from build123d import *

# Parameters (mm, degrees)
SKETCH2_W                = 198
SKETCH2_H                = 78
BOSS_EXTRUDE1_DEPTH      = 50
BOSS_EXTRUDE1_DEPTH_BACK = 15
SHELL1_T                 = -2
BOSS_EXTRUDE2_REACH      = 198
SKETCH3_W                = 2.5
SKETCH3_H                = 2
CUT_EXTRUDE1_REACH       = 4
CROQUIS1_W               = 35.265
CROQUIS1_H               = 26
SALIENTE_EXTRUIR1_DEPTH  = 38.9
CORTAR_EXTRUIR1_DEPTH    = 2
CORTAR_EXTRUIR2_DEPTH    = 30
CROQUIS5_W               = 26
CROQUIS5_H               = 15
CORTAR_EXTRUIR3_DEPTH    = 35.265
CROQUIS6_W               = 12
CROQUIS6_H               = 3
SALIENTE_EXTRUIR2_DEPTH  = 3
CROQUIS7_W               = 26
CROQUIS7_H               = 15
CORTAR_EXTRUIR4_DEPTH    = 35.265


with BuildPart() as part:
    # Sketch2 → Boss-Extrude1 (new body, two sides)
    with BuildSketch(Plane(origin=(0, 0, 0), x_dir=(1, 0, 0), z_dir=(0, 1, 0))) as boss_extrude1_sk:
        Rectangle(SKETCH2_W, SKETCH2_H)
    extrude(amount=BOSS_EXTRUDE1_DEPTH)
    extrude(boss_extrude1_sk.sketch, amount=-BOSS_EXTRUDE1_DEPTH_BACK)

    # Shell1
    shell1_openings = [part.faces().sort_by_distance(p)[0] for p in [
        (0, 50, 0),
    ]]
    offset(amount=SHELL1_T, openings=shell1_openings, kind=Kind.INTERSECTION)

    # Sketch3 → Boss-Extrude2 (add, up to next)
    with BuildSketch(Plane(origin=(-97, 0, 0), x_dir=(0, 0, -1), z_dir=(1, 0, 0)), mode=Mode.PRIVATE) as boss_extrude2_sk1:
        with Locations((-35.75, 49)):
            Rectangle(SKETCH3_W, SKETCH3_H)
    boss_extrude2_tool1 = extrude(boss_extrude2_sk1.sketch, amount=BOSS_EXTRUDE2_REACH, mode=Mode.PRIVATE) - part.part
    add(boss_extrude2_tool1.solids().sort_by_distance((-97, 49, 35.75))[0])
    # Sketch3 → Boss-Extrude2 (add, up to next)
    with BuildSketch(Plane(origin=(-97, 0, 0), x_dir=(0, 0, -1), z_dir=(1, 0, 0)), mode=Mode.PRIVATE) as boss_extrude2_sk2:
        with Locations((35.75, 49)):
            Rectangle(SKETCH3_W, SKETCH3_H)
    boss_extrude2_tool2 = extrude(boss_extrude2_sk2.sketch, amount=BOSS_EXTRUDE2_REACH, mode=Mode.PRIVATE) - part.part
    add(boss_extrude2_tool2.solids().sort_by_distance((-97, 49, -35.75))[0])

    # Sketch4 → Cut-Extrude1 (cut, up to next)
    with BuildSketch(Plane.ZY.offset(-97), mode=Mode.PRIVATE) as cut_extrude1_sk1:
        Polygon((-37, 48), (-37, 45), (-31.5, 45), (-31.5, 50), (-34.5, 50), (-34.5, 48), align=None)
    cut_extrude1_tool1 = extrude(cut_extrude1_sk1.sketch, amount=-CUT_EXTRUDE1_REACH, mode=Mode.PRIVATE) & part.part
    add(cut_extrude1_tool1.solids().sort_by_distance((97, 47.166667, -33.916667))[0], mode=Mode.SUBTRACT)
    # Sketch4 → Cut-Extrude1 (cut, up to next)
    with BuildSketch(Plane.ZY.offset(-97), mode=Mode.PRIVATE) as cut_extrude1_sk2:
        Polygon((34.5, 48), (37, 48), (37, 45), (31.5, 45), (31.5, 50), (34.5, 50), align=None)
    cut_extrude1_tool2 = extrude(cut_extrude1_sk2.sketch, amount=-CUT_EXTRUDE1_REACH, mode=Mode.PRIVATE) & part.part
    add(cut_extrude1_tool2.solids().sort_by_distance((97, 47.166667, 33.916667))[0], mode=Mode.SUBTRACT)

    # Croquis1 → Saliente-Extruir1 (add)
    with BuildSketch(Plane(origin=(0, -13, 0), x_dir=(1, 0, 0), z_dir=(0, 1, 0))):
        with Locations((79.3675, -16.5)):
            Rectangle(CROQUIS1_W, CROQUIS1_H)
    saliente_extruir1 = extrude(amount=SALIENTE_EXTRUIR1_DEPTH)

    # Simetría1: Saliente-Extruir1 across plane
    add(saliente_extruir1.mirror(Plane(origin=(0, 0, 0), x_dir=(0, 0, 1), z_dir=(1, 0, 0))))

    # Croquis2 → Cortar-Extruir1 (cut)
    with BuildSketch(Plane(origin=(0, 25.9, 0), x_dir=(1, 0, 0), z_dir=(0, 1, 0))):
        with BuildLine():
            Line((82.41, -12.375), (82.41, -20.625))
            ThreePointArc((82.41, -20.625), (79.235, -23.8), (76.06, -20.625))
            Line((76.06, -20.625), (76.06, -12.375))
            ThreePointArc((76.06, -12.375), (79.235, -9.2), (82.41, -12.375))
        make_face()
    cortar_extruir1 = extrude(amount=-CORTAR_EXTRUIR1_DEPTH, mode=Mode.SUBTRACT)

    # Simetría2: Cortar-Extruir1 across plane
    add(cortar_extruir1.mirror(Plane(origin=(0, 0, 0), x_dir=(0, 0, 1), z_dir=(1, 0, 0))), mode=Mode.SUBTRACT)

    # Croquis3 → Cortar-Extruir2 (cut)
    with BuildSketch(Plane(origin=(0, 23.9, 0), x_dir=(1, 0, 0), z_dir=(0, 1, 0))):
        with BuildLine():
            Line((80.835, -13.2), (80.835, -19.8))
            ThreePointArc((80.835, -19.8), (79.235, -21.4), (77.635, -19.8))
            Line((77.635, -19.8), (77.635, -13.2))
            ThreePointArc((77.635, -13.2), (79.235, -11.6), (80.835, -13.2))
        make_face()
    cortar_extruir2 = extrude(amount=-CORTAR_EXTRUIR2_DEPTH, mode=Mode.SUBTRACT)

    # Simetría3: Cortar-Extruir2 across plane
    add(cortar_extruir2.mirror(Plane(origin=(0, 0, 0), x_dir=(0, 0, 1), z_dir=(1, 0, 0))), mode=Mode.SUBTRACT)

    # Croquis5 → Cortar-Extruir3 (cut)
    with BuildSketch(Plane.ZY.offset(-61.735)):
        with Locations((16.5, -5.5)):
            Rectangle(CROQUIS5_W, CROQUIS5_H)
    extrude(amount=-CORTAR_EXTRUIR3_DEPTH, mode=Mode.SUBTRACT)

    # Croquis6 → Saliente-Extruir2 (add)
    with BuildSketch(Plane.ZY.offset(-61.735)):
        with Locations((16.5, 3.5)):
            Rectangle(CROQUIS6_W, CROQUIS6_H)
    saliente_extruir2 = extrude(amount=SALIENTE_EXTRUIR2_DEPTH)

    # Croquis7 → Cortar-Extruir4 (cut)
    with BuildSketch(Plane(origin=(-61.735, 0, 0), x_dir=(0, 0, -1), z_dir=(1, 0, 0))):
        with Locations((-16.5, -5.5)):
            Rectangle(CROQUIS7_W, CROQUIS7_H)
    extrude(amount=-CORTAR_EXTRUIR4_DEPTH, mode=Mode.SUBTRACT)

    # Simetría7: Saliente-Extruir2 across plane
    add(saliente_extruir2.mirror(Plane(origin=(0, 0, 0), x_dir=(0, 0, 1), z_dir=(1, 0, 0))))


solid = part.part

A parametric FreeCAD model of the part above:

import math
import FreeCAD as App
import Part
import Sketcher

V = App.Vector
Q = App.Units.Quantity


def faces_at(feature, points):
    """Names of the faces that lie closest to the given points."""
    faces = feature.Shape.Faces
    near = lambda p: min(range(len(faces)), key=lambda i: faces[i].distToShape(Part.Vertex(*p))[0])
    return sorted({f"Face{near(p) + 1}" for p in points})


def add_polygon(sketch, points):
    """Adds a closed chain of lines whose ends are joined by coincident constraints."""
    first, n = sketch.GeometryCount, len(points)
    for a, b in zip(points, points[1:] + points[:1]):
        sketch.addGeometry(Part.LineSegment(App.Vector(*a, 0), App.Vector(*b, 0)), False)
    for i in range(n):
        sketch.addConstraint(Sketcher.Constraint("Coincident", first + i, 2, first + (i + 1) % n, 1))

doc = App.newDocument("Part")
body = doc.addObject("PartDesign::Body", "Body")

# Sketch on XZ plane
sketch1 = body.newObject("Sketcher::SketchObject", "Sketch")
sketch1.AttachmentSupport = (doc.getObject("XZ_Plane"), [""])
sketch1.MapMode = "FlatFace"
add_polygon(sketch1, [(-99, -39), (-99, 39), (99, 39), (99, -39)])  # lines 0-3
sketch1.addConstraint(Sketcher.Constraint("Vertical", 0))
sketch1.addConstraint(Sketcher.Constraint("Horizontal", 1))
sketch1.addConstraint(Sketcher.Constraint("Vertical", 2))
sketch1.addConstraint(Sketcher.Constraint("Horizontal", 3))
sketch1.addConstraint(Sketcher.Constraint("Symmetric", 0, 2, 2, 2, -1, 1))
sketch1.addConstraint(Sketcher.Constraint("DistanceX", 1, 1, 1, 2, Q("198 mm")))
sketch1.addConstraint(Sketcher.Constraint("DistanceY", 0, 1, 0, 2, Q("78 mm")))
pad1 = body.newObject("PartDesign::Pad", "Pad")
pad1.Profile = sketch1
pad1.Type = "TwoLengths"
pad1.Length = 50
pad1.Length2 = 15
pad1.Reversed = True
doc.recompute()

thickness = body.newObject("PartDesign::Thickness", "Thickness")
thickness.Base = (pad1, faces_at(pad1, [(0, 50, 0)]))
thickness.Value = 2
thickness.Reversed = True
thickness.Join = "Intersection"

# Sketch on YZ plane
sketch2 = body.newObject("Sketcher::SketchObject", "Sketch001")
sketch2.AttachmentSupport = (doc.getObject("YZ_Plane"), [""])
sketch2.MapMode = "FlatFace"
sketch2.AttachmentOffset = App.Placement(V(0, 0, -97), App.Rotation())
add_polygon(sketch2, [(50, 37), (48, 37), (48, 34.5), (50, 34.5)])  # lines 0-3
sketch2.addConstraint(Sketcher.Constraint("Horizontal", 0))
sketch2.addConstraint(Sketcher.Constraint("Vertical", 1))
sketch2.addConstraint(Sketcher.Constraint("Horizontal", 2))
sketch2.addConstraint(Sketcher.Constraint("Vertical", 3))
sketch2.addConstraint(Sketcher.Constraint("DistanceX", 0, 2, 0, 1, Q("2 mm")))
sketch2.addConstraint(Sketcher.Constraint("DistanceY", 1, 2, 1, 1, Q("2.5 mm")))
sketch2.addConstraint(Sketcher.Constraint("DistanceX", -1, 1, 0, 2, Q("48 mm")))
sketch2.addConstraint(Sketcher.Constraint("DistanceY", -1, 1, 0, 2, Q("37 mm")))
pad2 = body.newObject("PartDesign::Pad", "Pad001")
pad2.Profile = sketch2
pad2.Type = "UpToFirst"

# Sketch on YZ plane
sketch3 = body.newObject("Sketcher::SketchObject", "Sketch002")
sketch3.AttachmentSupport = (doc.getObject("YZ_Plane"), [""])
sketch3.MapMode = "FlatFace"
sketch3.AttachmentOffset = App.Placement(V(0, 0, -97), App.Rotation())
add_polygon(sketch3, [(50, -34.5), (48, -34.5), (48, -37), (50, -37)])  # lines 0-3
sketch3.addConstraint(Sketcher.Constraint("Horizontal", 0))
sketch3.addConstraint(Sketcher.Constraint("Vertical", 1))
sketch3.addConstraint(Sketcher.Constraint("Horizontal", 2))
sketch3.addConstraint(Sketcher.Constraint("Vertical", 3))
sketch3.addConstraint(Sketcher.Constraint("DistanceX", 0, 2, 0, 1, Q("2 mm")))
sketch3.addConstraint(Sketcher.Constraint("DistanceY", 1, 2, 1, 1, Q("2.5 mm")))
sketch3.addConstraint(Sketcher.Constraint("DistanceX", -1, 1, 0, 2, Q("48 mm")))
sketch3.addConstraint(Sketcher.Constraint("DistanceY", 1, 2, -1, 1, Q("37 mm")))
pad3 = body.newObject("PartDesign::Pad", "Pad002")
pad3.Profile = sketch3
pad3.Type = "UpToFirst"

# Sketch on YZ plane
sketch4 = body.newObject("Sketcher::SketchObject", "Sketch003")
sketch4.AttachmentSupport = (doc.getObject("YZ_Plane"), [""])
sketch4.MapMode = "FlatFace"
sketch4.AttachmentOffset = App.Placement(V(0, 0, 97), App.Rotation())
add_polygon(sketch4, [(48, -37), (45, -37), (45, -31.5), (50, -31.5), (50, -34.5), (48, -34.5)])  # lines 0-5
sketch4.addConstraint(Sketcher.Constraint("Horizontal", 0))
sketch4.addConstraint(Sketcher.Constraint("Vertical", 1))
sketch4.addConstraint(Sketcher.Constraint("Horizontal", 2))
sketch4.addConstraint(Sketcher.Constraint("Vertical", 3))
sketch4.addConstraint(Sketcher.Constraint("Horizontal", 4))
sketch4.addConstraint(Sketcher.Constraint("Vertical", 5))
sketch4.addConstraint(Sketcher.Constraint("Equal", 0, 3))
sketch4.addConstraint(Sketcher.Constraint("DistanceX", 0, 2, 0, 1, Q("3 mm")))
sketch4.addConstraint(Sketcher.Constraint("DistanceX", 2, 1, 2, 2, Q("5 mm")))
sketch4.addConstraint(Sketcher.Constraint("DistanceY", 1, 1, 1, 2, Q("5.5 mm")))
sketch4.addConstraint(Sketcher.Constraint("DistanceX", -1, 1, 0, 2, Q("45 mm")))
sketch4.addConstraint(Sketcher.Constraint("DistanceY", 0, 2, -1, 1, Q("37 mm")))
pocket1 = body.newObject("PartDesign::Pocket", "Pocket")
pocket1.Profile = sketch4
pocket1.Type = "UpToFirst"
pocket1.Reversed = True

# Sketch on YZ plane
sketch5 = body.newObject("Sketcher::SketchObject", "Sketch004")
sketch5.AttachmentSupport = (doc.getObject("YZ_Plane"), [""])
sketch5.MapMode = "FlatFace"
sketch5.AttachmentOffset = App.Placement(V(0, 0, 97), App.Rotation())
add_polygon(sketch5, [(48, 37), (48, 34.5), (50, 34.5), (50, 31.5), (45, 31.5), (45, 37)])  # lines 0-5
sketch5.addConstraint(Sketcher.Constraint("Vertical", 0))
sketch5.addConstraint(Sketcher.Constraint("Horizontal", 1))
sketch5.addConstraint(Sketcher.Constraint("Vertical", 2))
sketch5.addConstraint(Sketcher.Constraint("Horizontal", 3))
sketch5.addConstraint(Sketcher.Constraint("Vertical", 4))
sketch5.addConstraint(Sketcher.Constraint("Horizontal", 5))
sketch5.addConstraint(Sketcher.Constraint("Equal", 5, 2))
sketch5.addConstraint(Sketcher.Constraint("DistanceX", 1, 1, 1, 2, Q("2 mm")))
sketch5.addConstraint(Sketcher.Constraint("DistanceX", 3, 2, 3, 1, Q("5 mm")))
sketch5.addConstraint(Sketcher.Constraint("DistanceY", 0, 2, 0, 1, Q("2.5 mm")))
sketch5.addConstraint(Sketcher.Constraint("DistanceX", -1, 1, 0, 2, Q("48 mm")))
sketch5.addConstraint(Sketcher.Constraint("DistanceY", -1, 1, 4, 2, Q("37 mm")))
pocket2 = body.newObject("PartDesign::Pocket", "Pocket001")
pocket2.Profile = sketch5
pocket2.Type = "UpToFirst"
pocket2.Reversed = True

# Sketch on XZ plane
sketch6 = body.newObject("Sketcher::SketchObject", "Sketch005")
sketch6.AttachmentSupport = (doc.getObject("XZ_Plane"), [""])
sketch6.MapMode = "FlatFace"
sketch6.AttachmentOffset = App.Placement(V(0, 0, 13), App.Rotation())
add_polygon(sketch6, [(61.735, 3.5), (61.735, 29.5), (97, 29.5), (97, 3.5)])  # lines 0-3
sketch6.addConstraint(Sketcher.Constraint("Vertical", 0))
sketch6.addConstraint(Sketcher.Constraint("Horizontal", 1))
sketch6.addConstraint(Sketcher.Constraint("Vertical", 2))
sketch6.addConstraint(Sketcher.Constraint("Horizontal", 3))
sketch6.addConstraint(Sketcher.Constraint("DistanceY", 0, 1, 0, 2, Q("26 mm")))
sketch6.addConstraint(Sketcher.Constraint("DistanceX", -1, 1, 1, 2, Q("97 mm")))
sketch6.addConstraint(Sketcher.Constraint("DistanceY", -1, 1, 0, 2, Q("29.5 mm")))
sketch6.addConstraint(Sketcher.Constraint("DistanceX", 1, 1, 1, 2, Q("35.265 mm")))
pad4 = body.newObject("PartDesign::Pad", "Pad003")
pad4.Profile = sketch6
pad4.Length = 38.9
pad4.Reversed = True
doc.recompute()

mirrored = body.newObject("PartDesign::Mirrored", "Mirrored")
mirrored.Originals = [pad4]
mirrored.MirrorPlane = (doc.getObject("YZ_Plane"), [""])
body.Tip = mirrored

# Sketch on XZ plane
sketch7 = body.newObject("Sketcher::SketchObject", "Sketch006")
sketch7.AttachmentSupport = (doc.getObject("XZ_Plane"), [""])
sketch7.MapMode = "FlatFace"
sketch7.AttachmentOffset = App.Placement(V(0, 0, -25.9), App.Rotation())
sketch7.addGeometry(Part.LineSegment(V(82.41, 20.625, 0), V(82.41, 12.375, 0)), False)
sketch7.addGeometry(Part.ArcOfCircle(Part.Circle(V(79.235, 12.375, 0), V(0, 0, 1), 3.175), math.radians(180), math.radians(360)), False)
sketch7.addGeometry(Part.LineSegment(V(76.06, 12.375, 0), V(76.06, 20.625, 0)), False)
sketch7.addGeometry(Part.ArcOfCircle(Part.Circle(V(79.235, 20.625, 0), V(0, 0, 1), 3.175), math.radians(0), math.radians(180)), False)
sketch7.addConstraint(Sketcher.Constraint("Tangent", 0, 2, 1, 2))
sketch7.addConstraint(Sketcher.Constraint("Tangent", 1, 1, 2, 1))
sketch7.addConstraint(Sketcher.Constraint("Tangent", 2, 2, 3, 2))
sketch7.addConstraint(Sketcher.Constraint("Tangent", 3, 1, 0, 1))
sketch7.addConstraint(Sketcher.Constraint("Vertical", 0))
sketch7.addConstraint(Sketcher.Constraint("Vertical", 2))
sketch7.addConstraint(Sketcher.Constraint("Radius", 1, Q("3.175 mm")))
sketch7.addConstraint(Sketcher.Constraint("DistanceY", 0, 2, 0, 1, Q("8.25 mm")))
sketch7.addConstraint(Sketcher.Constraint("DistanceX", -1, 1, 0, 2, Q("82.41 mm")))
sketch7.addConstraint(Sketcher.Constraint("DistanceY", -1, 1, 1, 3, Q("12.375 mm")))
pocket3 = body.newObject("PartDesign::Pocket", "Pocket002")
pocket3.Profile = sketch7
pocket3.Length = 2
pocket3.Reversed = True
doc.recompute()

mirrored2 = body.newObject("PartDesign::Mirrored", "Mirrored001")
mirrored2.Originals = [pocket3]
mirrored2.MirrorPlane = (doc.getObject("YZ_Plane"), [""])
body.Tip = mirrored2

# Sketch on XZ plane
sketch8 = body.newObject("Sketcher::SketchObject", "Sketch007")
sketch8.AttachmentSupport = (doc.getObject("XZ_Plane"), [""])
sketch8.MapMode = "FlatFace"
sketch8.AttachmentOffset = App.Placement(V(0, 0, -23.9), App.Rotation())
sketch8.addGeometry(Part.LineSegment(V(80.835, 19.8, 0), V(80.835, 13.2, 0)), False)
sketch8.addGeometry(Part.ArcOfCircle(Part.Circle(V(79.235, 13.2, 0), V(0, 0, 1), 1.6), math.radians(180), math.radians(360)), False)
sketch8.addGeometry(Part.LineSegment(V(77.635, 13.2, 0), V(77.635, 19.8, 0)), False)
sketch8.addGeometry(Part.ArcOfCircle(Part.Circle(V(79.235, 19.8, 0), V(0, 0, 1), 1.6), math.radians(0), math.radians(180)), False)
sketch8.addConstraint(Sketcher.Constraint("Tangent", 0, 2, 1, 2))
sketch8.addConstraint(Sketcher.Constraint("Tangent", 1, 1, 2, 1))
sketch8.addConstraint(Sketcher.Constraint("Tangent", 2, 2, 3, 2))
sketch8.addConstraint(Sketcher.Constraint("Tangent", 3, 1, 0, 1))
sketch8.addConstraint(Sketcher.Constraint("Vertical", 0))
sketch8.addConstraint(Sketcher.Constraint("Vertical", 2))
sketch8.addConstraint(Sketcher.Constraint("Radius", 1, Q("1.6 mm")))
sketch8.addConstraint(Sketcher.Constraint("DistanceY", 0, 2, 0, 1, Q("6.6 mm")))
sketch8.addConstraint(Sketcher.Constraint("DistanceY", -1, 1, 1, 3, Q("13.2 mm")))
sketch8.addConstraint(Sketcher.Constraint("DistanceX", -1, 1, 1, 3, Q("79.235 mm")))
pocket4 = body.newObject("PartDesign::Pocket", "Pocket003")
pocket4.Profile = sketch8
pocket4.Length = 30
pocket4.Reversed = True
doc.recompute()

mirrored3 = body.newObject("PartDesign::Mirrored", "Mirrored002")
mirrored3.Originals = [pocket4]
mirrored3.MirrorPlane = (doc.getObject("YZ_Plane"), [""])
body.Tip = mirrored3

# Sketch on YZ plane
sketch9 = body.newObject("Sketcher::SketchObject", "Sketch008")
sketch9.AttachmentSupport = (doc.getObject("YZ_Plane"), [""])
sketch9.MapMode = "FlatFace"
sketch9.AttachmentOffset = App.Placement(V(0, 0, 61.735), App.Rotation())
add_polygon(sketch9, [(2, 3.5), (-13, 3.5), (-13, 29.5), (2, 29.5)])  # lines 0-3
sketch9.addConstraint(Sketcher.Constraint("Horizontal", 0))
sketch9.addConstraint(Sketcher.Constraint("Vertical", 1))
sketch9.addConstraint(Sketcher.Constraint("Horizontal", 2))
sketch9.addConstraint(Sketcher.Constraint("Vertical", 3))
sketch9.addConstraint(Sketcher.Constraint("DistanceX", 0, 2, 0, 1, Q("15 mm")))
sketch9.addConstraint(Sketcher.Constraint("DistanceY", 1, 1, 1, 2, Q("26 mm")))
sketch9.addConstraint(Sketcher.Constraint("DistanceX", 0, 2, -1, 1, Q("13 mm")))
sketch9.addConstraint(Sketcher.Constraint("DistanceY", -1, 1, 0, 2, Q("3.5 mm")))
pocket5 = body.newObject("PartDesign::Pocket", "Pocket004")
pocket5.Profile = sketch9
pocket5.Length = 35.265
pocket5.Reversed = True

# Sketch on YZ plane
sketch10 = body.newObject("Sketcher::SketchObject", "Sketch009")
sketch10.AttachmentSupport = (doc.getObject("YZ_Plane"), [""])
sketch10.MapMode = "FlatFace"
sketch10.AttachmentOffset = App.Placement(V(0, 0, 61.735), App.Rotation())
add_polygon(sketch10, [(5, 10.5), (2, 10.5), (2, 22.5), (5, 22.5)])  # lines 0-3
sketch10.addConstraint(Sketcher.Constraint("Horizontal", 0))
sketch10.addConstraint(Sketcher.Constraint("Vertical", 1))
sketch10.addConstraint(Sketcher.Constraint("Horizontal", 2))
sketch10.addConstraint(Sketcher.Constraint("Vertical", 3))
sketch10.addConstraint(Sketcher.Constraint("DistanceX", 0, 2, 0, 1, Q("3 mm")))
sketch10.addConstraint(Sketcher.Constraint("DistanceY", 1, 1, 1, 2, Q("12 mm")))
sketch10.addConstraint(Sketcher.Constraint("DistanceX", -1, 1, 0, 2, Q("2 mm")))
sketch10.addConstraint(Sketcher.Constraint("DistanceY", -1, 1, 0, 2, Q("10.5 mm")))
pad5 = body.newObject("PartDesign::Pad", "Pad004")
pad5.Profile = sketch10
pad5.Length = 3
pad5.Reversed = True

# Sketch on YZ plane
sketch11 = body.newObject("Sketcher::SketchObject", "Sketch010")
sketch11.AttachmentSupport = (doc.getObject("YZ_Plane"), [""])
sketch11.MapMode = "FlatFace"
sketch11.AttachmentOffset = App.Placement(V(0, 0, -61.735), App.Rotation())
add_polygon(sketch11, [(2, 29.5), (-13, 29.5), (-13, 3.5), (2, 3.5)])  # lines 0-3
sketch11.addConstraint(Sketcher.Constraint("Horizontal", 0))
sketch11.addConstraint(Sketcher.Constraint("Vertical", 1))
sketch11.addConstraint(Sketcher.Constraint("Horizontal", 2))
sketch11.addConstraint(Sketcher.Constraint("Vertical", 3))
sketch11.addConstraint(Sketcher.Constraint("DistanceX", 0, 2, 0, 1, Q("15 mm")))
sketch11.addConstraint(Sketcher.Constraint("DistanceY", 1, 2, 1, 1, Q("26 mm")))
sketch11.addConstraint(Sketcher.Constraint("DistanceX", 0, 2, -1, 1, Q("13 mm")))
sketch11.addConstraint(Sketcher.Constraint("DistanceY", -1, 1, 0, 2, Q("29.5 mm")))
pocket6 = body.newObject("PartDesign::Pocket", "Pocket005")
pocket6.Profile = sketch11
pocket6.Length = 35.265
doc.recompute()

mirrored4 = body.newObject("PartDesign::Mirrored", "Mirrored003")
mirrored4.Originals = [pad5]
mirrored4.MirrorPlane = (doc.getObject("YZ_Plane"), [""])
body.Tip = mirrored4

doc.recompute()
